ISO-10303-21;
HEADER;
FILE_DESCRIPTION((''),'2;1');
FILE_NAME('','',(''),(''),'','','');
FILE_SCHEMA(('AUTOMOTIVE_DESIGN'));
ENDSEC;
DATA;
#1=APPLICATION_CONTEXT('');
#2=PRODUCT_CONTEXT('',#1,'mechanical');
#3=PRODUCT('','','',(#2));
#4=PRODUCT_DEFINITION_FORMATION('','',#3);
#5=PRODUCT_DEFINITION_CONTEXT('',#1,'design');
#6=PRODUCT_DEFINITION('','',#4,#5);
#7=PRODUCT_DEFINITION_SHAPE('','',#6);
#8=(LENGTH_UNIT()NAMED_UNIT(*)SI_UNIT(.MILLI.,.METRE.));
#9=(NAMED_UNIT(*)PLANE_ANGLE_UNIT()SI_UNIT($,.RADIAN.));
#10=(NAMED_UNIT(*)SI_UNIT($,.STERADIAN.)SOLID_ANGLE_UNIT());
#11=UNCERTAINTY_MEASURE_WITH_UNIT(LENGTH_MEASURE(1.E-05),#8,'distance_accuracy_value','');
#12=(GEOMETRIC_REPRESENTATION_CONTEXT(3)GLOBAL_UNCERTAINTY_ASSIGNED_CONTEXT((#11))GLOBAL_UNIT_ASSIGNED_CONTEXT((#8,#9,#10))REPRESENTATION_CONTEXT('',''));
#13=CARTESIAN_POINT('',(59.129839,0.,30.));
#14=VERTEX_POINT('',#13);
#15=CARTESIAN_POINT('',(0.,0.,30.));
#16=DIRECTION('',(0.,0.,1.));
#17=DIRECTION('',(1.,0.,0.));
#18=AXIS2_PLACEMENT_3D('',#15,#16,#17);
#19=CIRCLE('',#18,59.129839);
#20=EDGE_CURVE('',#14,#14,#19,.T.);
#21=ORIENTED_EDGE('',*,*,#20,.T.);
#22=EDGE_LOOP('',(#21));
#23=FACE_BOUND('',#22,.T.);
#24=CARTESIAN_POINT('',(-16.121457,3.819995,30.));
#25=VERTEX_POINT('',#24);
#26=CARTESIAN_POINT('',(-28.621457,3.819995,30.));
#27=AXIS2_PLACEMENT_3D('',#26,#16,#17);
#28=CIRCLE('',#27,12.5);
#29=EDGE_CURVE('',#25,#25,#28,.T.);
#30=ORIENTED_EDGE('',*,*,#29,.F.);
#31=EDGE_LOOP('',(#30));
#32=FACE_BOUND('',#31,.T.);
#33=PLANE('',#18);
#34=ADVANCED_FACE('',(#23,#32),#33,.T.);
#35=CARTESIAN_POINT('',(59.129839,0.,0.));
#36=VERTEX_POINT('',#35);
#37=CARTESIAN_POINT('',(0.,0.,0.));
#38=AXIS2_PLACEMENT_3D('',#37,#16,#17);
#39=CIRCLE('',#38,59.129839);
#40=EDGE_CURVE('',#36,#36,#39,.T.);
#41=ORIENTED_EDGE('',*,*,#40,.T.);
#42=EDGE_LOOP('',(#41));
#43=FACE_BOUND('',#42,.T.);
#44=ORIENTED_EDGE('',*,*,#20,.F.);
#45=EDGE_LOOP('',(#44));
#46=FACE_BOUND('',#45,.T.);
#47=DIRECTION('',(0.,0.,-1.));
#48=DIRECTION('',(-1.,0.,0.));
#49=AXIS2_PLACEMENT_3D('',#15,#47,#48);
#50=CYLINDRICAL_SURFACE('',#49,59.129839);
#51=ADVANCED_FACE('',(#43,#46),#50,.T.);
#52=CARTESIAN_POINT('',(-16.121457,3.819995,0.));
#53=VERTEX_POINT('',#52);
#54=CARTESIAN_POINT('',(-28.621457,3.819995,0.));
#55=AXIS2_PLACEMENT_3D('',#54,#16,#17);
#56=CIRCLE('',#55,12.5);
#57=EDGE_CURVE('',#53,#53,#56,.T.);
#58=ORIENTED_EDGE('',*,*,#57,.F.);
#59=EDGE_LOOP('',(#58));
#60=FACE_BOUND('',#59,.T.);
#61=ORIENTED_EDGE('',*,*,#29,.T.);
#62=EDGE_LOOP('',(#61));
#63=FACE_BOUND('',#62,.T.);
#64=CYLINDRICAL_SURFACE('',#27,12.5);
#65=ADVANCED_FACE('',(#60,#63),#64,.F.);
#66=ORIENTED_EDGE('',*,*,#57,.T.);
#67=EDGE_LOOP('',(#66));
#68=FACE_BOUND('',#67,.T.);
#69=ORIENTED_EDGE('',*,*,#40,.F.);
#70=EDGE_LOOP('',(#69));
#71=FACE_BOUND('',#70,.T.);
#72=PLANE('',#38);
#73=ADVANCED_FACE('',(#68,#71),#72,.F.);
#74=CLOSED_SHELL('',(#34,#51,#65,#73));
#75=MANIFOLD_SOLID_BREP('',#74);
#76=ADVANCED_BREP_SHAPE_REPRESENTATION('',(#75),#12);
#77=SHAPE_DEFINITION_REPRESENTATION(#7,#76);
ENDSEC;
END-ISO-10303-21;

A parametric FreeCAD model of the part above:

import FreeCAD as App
import Part
import Sketcher
from FreeCAD import Vector

doc = App.newDocument("Part")
body = doc.addObject("PartDesign::Body", "Body")

sketch1 = body.newObject("Sketcher::SketchObject", "Sketch")
sketch1.AttachmentSupport = (doc.getObject("XY_Plane"), [""])
sketch1.MapMode = "FlatFace"
sketch1.addGeometry(Part.Circle(Vector(0, 0, 0), Vector(0, 0, 1), 59), False)
sketch1.addConstraint([
    Sketcher.Constraint("Coincident", 0, 3, -1, 1),
    Sketcher.Constraint("Diameter", 0, 118.259678),
])
pad1 = body.newObject("PartDesign::Pad", "Pad")
pad1.Profile = sketch1
pad1.Length = 30

sketch2 = body.newObject("Sketcher::SketchObject", "Sketch001")
sketch2.AttachmentSupport = (doc.getObject("XY_Plane"), [""])
sketch2.MapMode = "FlatFace"
sketch2.AttachmentOffset = App.Placement(Vector(0, 0, 30), App.Rotation())
sketch2.addGeometry(Part.Circle(Vector(-29, 4, 0), Vector(0, 0, 1), 12), False)
sketch2.addConstraint([
    Sketcher.Constraint("Diameter", 0, 25.0),
    Sketcher.Constraint("DistanceX", 0, 3, -1, 1, 28.621457),
    Sketcher.Constraint("DistanceY", -1, 1, 0, 3, 3.819995),
])
doc.recompute()
hole = body.newObject("PartDesign::Hole", "Hole")
hole.Profile = sketch2
hole.ThreadType = "None"
hole.Diameter = 25
hole.DepthType = "ThroughAll"

doc.recompute()
